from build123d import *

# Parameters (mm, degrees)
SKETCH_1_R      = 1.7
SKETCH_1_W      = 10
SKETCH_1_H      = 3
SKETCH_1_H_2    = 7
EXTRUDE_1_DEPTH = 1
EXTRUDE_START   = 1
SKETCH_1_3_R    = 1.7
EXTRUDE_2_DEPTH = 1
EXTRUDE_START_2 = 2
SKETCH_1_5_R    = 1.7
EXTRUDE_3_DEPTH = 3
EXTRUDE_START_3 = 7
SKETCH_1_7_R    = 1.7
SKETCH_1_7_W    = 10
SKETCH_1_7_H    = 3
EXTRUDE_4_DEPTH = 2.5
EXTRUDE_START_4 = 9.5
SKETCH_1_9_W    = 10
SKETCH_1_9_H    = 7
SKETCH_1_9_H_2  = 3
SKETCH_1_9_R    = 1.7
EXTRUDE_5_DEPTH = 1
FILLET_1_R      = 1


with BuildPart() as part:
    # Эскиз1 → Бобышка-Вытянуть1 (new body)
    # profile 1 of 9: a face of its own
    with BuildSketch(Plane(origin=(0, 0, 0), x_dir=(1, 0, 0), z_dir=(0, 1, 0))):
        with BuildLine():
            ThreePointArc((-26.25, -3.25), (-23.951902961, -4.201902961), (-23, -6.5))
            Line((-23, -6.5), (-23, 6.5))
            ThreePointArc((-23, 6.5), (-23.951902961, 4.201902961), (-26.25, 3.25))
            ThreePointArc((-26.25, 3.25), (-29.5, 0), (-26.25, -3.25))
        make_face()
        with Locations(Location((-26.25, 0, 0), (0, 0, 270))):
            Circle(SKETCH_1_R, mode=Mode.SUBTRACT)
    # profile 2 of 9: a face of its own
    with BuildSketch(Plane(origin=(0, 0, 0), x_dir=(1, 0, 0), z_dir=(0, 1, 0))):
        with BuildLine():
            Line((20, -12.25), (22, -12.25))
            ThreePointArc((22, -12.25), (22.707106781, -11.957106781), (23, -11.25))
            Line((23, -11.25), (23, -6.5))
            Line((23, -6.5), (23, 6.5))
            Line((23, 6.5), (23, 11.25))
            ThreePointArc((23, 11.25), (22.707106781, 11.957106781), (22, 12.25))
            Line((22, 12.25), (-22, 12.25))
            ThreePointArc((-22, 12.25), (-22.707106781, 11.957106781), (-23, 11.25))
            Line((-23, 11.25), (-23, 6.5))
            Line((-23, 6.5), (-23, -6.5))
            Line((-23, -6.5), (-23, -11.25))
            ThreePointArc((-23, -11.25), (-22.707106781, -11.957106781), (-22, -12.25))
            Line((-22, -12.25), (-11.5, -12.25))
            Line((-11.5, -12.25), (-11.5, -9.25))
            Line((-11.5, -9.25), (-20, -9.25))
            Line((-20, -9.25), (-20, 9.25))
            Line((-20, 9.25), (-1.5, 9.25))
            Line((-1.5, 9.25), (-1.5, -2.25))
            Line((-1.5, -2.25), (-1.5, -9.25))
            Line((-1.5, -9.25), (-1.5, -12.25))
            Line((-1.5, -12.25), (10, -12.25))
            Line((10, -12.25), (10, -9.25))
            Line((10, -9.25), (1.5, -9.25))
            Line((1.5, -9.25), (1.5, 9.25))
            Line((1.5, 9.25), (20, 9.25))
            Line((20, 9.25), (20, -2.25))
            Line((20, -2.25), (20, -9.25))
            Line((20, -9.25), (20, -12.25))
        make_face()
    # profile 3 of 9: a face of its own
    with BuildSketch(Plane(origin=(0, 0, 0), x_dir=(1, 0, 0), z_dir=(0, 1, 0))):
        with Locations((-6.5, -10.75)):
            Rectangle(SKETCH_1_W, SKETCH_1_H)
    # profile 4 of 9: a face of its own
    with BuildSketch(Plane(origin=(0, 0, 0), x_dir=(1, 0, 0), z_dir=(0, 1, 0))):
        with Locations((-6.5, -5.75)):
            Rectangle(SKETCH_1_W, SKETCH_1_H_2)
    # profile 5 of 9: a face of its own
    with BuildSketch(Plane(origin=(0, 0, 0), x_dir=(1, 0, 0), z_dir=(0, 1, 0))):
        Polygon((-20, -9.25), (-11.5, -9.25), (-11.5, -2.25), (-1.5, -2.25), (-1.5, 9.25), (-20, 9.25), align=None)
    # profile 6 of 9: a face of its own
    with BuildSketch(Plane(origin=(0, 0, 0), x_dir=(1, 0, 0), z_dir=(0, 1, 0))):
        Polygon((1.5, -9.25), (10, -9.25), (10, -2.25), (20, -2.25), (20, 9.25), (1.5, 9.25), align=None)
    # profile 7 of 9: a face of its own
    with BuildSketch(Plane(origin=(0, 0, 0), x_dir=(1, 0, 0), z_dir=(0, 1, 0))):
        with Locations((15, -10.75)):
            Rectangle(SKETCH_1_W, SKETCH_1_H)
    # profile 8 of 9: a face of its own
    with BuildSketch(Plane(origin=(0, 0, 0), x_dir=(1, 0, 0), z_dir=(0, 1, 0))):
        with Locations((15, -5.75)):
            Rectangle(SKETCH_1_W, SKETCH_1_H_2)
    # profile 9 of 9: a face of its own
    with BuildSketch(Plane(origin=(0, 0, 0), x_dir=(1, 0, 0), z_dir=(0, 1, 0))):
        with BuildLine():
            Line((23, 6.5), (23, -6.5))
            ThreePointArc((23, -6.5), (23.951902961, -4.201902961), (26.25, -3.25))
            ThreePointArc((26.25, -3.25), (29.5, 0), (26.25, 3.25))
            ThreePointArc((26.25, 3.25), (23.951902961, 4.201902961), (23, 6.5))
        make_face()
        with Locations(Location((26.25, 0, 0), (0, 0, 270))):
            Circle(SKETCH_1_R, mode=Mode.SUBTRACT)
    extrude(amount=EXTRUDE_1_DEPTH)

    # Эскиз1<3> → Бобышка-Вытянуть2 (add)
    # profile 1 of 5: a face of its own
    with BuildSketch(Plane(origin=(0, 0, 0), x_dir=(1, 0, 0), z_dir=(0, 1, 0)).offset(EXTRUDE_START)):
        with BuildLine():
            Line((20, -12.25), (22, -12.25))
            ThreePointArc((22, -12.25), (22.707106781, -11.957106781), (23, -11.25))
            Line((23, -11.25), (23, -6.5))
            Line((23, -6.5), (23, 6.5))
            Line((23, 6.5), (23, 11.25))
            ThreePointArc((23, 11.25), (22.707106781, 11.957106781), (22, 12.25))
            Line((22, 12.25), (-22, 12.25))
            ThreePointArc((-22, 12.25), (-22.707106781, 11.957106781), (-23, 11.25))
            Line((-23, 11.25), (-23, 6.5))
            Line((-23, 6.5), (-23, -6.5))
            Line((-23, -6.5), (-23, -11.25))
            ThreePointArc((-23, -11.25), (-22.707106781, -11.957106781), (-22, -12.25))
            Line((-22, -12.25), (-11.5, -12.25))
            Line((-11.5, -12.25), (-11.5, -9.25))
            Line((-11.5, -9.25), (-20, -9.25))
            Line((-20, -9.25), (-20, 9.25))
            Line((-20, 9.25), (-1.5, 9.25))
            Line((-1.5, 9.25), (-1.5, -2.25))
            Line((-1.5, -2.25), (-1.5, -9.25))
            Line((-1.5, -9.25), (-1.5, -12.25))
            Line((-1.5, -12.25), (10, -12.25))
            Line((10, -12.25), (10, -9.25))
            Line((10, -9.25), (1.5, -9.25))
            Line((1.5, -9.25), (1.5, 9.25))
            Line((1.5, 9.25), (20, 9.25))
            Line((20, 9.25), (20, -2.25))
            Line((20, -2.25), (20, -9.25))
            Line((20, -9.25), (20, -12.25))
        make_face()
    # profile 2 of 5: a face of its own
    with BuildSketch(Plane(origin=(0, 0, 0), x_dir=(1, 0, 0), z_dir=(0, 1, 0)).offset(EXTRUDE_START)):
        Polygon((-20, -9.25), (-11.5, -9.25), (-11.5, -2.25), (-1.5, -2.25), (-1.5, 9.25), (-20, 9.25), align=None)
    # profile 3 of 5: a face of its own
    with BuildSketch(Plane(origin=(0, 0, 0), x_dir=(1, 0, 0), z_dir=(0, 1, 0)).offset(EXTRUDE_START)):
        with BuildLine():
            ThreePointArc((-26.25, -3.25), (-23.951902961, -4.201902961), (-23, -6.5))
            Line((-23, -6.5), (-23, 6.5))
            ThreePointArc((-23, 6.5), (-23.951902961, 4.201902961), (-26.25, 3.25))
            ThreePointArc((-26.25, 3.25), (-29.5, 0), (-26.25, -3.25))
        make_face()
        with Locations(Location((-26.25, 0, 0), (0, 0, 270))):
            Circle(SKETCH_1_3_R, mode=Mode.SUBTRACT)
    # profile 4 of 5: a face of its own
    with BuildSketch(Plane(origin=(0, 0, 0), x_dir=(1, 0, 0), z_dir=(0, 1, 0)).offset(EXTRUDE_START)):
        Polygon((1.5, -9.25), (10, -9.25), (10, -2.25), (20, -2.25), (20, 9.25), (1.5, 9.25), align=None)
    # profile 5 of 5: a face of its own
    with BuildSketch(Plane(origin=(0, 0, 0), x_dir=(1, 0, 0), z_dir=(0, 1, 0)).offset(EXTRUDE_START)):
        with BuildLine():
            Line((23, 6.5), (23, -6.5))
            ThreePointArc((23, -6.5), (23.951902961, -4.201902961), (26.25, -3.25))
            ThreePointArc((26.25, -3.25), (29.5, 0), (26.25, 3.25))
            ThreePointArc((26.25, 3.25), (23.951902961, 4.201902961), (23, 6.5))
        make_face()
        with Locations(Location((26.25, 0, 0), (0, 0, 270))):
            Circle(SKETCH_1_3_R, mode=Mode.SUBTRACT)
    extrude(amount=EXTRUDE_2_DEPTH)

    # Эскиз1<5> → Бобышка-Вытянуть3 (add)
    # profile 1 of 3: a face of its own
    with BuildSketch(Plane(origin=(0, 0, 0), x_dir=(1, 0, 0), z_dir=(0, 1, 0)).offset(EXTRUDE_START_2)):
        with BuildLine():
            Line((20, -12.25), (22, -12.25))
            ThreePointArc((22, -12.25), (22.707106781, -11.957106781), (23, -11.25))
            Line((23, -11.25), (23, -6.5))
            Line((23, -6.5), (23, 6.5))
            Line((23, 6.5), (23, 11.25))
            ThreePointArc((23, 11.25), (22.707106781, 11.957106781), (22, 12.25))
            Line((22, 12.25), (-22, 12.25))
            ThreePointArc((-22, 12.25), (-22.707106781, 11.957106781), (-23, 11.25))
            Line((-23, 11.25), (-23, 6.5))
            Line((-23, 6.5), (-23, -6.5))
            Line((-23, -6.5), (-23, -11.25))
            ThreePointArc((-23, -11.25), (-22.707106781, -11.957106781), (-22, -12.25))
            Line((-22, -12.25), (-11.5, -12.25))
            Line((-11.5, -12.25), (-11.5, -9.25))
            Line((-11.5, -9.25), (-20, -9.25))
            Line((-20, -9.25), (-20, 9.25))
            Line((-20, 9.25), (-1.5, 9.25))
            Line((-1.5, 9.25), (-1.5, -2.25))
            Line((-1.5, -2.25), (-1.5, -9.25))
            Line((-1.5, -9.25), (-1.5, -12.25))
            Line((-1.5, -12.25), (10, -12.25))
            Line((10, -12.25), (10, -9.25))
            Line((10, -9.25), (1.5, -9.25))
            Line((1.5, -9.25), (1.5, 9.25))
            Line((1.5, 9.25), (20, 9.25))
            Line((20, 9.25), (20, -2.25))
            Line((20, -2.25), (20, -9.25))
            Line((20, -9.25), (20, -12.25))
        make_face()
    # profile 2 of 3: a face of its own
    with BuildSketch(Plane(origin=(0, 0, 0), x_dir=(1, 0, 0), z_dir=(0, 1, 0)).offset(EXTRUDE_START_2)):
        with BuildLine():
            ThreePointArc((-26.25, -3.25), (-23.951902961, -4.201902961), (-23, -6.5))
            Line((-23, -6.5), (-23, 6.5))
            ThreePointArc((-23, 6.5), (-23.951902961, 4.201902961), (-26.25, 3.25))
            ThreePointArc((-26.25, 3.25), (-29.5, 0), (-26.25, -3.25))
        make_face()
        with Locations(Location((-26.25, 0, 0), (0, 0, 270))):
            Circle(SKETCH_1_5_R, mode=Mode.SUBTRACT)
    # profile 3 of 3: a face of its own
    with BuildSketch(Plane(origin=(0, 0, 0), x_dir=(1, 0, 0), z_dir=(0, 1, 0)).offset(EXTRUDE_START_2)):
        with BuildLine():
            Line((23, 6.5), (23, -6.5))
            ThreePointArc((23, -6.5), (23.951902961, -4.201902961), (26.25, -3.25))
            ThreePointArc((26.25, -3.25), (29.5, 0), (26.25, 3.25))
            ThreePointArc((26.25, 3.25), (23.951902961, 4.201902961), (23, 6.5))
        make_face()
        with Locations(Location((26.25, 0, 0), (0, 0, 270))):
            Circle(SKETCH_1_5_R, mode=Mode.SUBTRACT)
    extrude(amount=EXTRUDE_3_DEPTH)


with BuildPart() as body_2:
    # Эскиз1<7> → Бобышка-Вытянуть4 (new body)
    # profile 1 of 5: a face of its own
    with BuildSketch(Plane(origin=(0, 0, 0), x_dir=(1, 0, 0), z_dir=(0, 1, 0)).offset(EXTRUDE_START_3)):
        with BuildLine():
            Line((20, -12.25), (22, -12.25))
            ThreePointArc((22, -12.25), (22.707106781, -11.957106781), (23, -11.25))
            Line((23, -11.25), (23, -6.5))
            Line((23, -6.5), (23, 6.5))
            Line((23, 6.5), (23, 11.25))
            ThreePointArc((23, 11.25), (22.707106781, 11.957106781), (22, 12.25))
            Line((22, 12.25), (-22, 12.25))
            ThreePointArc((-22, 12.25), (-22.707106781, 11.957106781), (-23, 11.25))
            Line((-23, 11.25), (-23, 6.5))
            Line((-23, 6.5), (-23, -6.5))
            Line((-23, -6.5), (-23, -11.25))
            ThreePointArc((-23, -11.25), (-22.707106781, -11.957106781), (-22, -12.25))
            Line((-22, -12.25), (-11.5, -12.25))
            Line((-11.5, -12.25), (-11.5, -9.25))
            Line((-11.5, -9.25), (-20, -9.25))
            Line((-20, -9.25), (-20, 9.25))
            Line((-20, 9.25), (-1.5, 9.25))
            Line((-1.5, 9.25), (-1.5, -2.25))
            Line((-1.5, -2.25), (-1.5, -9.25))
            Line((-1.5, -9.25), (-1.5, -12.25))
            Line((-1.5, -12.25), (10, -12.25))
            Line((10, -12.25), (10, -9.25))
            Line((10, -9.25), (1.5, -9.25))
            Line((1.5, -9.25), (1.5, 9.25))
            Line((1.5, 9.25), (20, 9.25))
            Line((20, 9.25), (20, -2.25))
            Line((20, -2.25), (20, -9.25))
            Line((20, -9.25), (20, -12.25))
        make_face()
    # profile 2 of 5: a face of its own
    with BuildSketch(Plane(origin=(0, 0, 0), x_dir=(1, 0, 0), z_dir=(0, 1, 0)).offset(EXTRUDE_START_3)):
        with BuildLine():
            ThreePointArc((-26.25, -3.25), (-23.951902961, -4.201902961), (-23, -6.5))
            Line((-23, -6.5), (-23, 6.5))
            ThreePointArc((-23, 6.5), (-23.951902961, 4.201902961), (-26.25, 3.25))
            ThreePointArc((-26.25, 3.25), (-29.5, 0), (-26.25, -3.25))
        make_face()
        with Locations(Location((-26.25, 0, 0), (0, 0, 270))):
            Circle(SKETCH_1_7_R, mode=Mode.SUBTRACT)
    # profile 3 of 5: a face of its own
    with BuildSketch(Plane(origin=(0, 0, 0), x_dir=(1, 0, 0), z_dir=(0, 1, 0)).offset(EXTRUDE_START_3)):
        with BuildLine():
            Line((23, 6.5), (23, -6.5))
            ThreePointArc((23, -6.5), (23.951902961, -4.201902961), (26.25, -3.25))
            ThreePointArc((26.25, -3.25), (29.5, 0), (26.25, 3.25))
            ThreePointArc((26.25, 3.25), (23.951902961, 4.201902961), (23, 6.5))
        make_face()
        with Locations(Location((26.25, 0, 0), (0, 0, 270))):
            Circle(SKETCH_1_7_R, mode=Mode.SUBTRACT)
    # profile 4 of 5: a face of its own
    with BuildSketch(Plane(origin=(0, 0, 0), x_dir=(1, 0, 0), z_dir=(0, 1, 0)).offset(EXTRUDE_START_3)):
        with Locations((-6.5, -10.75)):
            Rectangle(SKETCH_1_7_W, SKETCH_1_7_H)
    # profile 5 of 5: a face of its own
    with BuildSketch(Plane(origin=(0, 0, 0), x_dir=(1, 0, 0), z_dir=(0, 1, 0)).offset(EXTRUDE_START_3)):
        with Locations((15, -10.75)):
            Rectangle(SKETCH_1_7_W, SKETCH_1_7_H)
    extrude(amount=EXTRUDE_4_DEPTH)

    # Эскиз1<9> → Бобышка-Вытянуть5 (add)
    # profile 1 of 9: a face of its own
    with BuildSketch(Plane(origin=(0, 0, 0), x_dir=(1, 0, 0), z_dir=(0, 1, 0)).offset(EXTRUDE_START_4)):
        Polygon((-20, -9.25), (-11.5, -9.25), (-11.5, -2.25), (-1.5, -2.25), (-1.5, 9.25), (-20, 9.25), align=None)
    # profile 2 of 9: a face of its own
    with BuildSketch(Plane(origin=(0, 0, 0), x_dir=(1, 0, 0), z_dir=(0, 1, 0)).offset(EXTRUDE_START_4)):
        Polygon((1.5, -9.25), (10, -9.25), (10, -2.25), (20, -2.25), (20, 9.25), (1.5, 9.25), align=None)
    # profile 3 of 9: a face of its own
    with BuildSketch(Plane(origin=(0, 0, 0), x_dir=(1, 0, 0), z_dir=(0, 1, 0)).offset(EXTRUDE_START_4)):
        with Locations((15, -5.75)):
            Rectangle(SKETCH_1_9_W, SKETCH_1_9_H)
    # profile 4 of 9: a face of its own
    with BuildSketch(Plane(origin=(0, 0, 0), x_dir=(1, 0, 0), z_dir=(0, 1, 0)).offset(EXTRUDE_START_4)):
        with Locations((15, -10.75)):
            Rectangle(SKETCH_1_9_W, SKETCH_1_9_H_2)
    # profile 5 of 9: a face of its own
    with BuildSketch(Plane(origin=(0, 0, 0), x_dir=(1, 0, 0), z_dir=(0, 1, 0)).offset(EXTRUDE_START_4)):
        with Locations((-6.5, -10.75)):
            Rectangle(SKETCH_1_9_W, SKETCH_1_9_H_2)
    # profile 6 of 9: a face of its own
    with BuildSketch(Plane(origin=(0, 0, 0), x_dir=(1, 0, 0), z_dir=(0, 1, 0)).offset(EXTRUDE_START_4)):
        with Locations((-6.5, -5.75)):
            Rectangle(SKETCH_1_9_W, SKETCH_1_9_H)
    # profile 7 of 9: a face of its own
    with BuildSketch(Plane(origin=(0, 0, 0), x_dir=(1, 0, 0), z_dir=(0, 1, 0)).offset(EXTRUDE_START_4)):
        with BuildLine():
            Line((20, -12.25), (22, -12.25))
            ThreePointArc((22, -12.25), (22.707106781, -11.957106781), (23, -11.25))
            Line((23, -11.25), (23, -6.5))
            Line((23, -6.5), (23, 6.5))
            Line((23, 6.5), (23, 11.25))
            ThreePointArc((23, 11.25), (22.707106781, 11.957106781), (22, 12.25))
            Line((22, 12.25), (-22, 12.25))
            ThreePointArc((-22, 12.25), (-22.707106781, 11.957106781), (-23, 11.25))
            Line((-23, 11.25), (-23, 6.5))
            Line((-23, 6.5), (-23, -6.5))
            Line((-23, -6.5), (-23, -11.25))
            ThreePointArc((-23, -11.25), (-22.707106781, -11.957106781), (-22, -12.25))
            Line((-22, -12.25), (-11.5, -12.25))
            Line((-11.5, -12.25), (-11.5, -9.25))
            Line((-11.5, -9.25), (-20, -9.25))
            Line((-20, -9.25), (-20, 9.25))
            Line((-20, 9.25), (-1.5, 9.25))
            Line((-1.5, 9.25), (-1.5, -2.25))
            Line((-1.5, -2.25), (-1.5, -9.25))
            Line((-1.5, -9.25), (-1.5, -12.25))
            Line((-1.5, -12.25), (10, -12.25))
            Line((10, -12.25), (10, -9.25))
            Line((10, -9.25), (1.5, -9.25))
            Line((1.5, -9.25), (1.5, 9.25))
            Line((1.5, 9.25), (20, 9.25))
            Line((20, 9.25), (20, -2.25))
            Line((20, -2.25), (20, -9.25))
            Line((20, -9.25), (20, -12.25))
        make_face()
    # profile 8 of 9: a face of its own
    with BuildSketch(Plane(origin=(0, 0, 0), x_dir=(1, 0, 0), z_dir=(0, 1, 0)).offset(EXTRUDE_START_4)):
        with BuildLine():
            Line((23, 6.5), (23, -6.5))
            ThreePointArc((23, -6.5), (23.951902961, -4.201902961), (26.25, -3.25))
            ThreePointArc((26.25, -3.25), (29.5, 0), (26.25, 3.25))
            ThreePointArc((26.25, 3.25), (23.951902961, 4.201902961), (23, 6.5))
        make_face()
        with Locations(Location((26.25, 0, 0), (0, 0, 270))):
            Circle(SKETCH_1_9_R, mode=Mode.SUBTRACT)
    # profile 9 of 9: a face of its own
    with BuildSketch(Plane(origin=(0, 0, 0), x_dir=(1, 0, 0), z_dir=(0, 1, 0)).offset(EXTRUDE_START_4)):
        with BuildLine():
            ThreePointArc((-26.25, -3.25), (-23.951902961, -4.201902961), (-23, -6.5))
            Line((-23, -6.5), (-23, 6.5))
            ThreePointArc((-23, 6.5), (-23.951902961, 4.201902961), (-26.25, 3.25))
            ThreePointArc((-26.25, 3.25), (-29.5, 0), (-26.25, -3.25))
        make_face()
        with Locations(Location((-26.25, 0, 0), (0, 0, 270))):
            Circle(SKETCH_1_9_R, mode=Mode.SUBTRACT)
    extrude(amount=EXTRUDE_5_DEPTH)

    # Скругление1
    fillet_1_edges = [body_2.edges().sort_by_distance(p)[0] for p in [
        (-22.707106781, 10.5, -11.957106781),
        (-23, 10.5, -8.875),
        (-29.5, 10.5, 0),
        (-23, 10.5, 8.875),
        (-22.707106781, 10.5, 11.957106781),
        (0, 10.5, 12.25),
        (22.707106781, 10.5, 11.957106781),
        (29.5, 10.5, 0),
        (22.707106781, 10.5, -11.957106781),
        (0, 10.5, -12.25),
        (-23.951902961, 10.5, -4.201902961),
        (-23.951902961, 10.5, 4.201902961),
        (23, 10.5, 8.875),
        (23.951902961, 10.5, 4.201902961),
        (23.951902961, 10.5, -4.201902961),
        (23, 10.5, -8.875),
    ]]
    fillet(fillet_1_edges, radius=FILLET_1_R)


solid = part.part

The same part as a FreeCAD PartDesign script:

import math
import FreeCAD as App
import Part
import Sketcher
from FreeCAD import Vector
Q = App.Units.Quantity


def edges_at(feature, points):
    """Names of the edges that pass closest to the given points."""
    edges = feature.Shape.Edges
    near = lambda p: min(range(len(edges)), key=lambda i: edges[i].distToShape(Part.Vertex(*p))[0])
    return sorted({f"Edge{near(p) + 1}" for p in points})

doc = App.newDocument("Part")
body = doc.addObject("PartDesign::Body", "Body")

sketch1 = body.newObject("Sketcher::SketchObject", "Sketch")
sketch1.AttachmentSupport = (doc.getObject("XZ_Plane"), [""])
sketch1.MapMode = "FlatFace"
sketch1.addGeometry(Part.ArcOfCircle(Part.Circle(Vector(-26.25, 6.5, 0), Vector(0, 0, 1), 3.25), math.radians(-90), math.radians(0)), False)
sketch1.addGeometry(Part.LineSegment(Vector(-23, 6.5, 0), Vector(-23, 11.25, 0)), False)
sketch1.addGeometry(Part.ArcOfCircle(Part.Circle(Vector(-22, 11.25, 0), Vector(0, 0, 1), 1), math.radians(90), math.radians(180)), False)
sketch1.addGeometry(Part.LineSegment(Vector(-22, 12.25, 0), Vector(22, 12.25, 0)), False)
sketch1.addGeometry(Part.ArcOfCircle(Part.Circle(Vector(22, 11.25, 0), Vector(0, 0, 1), 1), math.radians(0), math.radians(90)), False)
sketch1.addGeometry(Part.LineSegment(Vector(23, 11.25, 0), Vector(23, 6.5, 0)), False)
sketch1.addGeometry(Part.ArcOfCircle(Part.Circle(Vector(26.25, 6.5, 0), Vector(0, 0, 1), 3.25), math.radians(180), math.radians(270)), False)
sketch1.addGeometry(Part.ArcOfCircle(Part.Circle(Vector(26.25, 0, 0), Vector(0, 0, 1), 3.25), math.radians(-90), math.radians(90)), False)
sketch1.addGeometry(Part.ArcOfCircle(Part.Circle(Vector(26.25, -6.5, 0), Vector(0, 0, 1), 3.25), math.radians(90), math.radians(180)), False)
sketch1.addGeometry(Part.LineSegment(Vector(23, -6.5, 0), Vector(23, -11.25, 0)), False)
sketch1.addGeometry(Part.ArcOfCircle(Part.Circle(Vector(22, -11.25, 0), Vector(0, 0, 1), 1), math.radians(-90), math.radians(0)), False)
sketch1.addGeometry(Part.LineSegment(Vector(22, -12.25, 0), Vector(-22, -12.25, 0)), False)
sketch1.addGeometry(Part.ArcOfCircle(Part.Circle(Vector(-22, -11.25, 0), Vector(0, 0, 1), 1), math.radians(-180), math.radians(-90)), False)
sketch1.addGeometry(Part.LineSegment(Vector(-23, -11.25, 0), Vector(-23, -6.5, 0)), False)
sketch1.addGeometry(Part.ArcOfCircle(Part.Circle(Vector(-26.25, -6.5, 0), Vector(0, 0, 1), 3.25), math.radians(0), math.radians(90)), False)
sketch1.addGeometry(Part.ArcOfCircle(Part.Circle(Vector(-26.25, 0, 0), Vector(0, 0, 1), 3.25), math.radians(90), math.radians(270)), False)
sketch1.addGeometry(Part.Circle(Vector(-26.25, 0, 0), Vector(0, 0, 1), 1.7), False)
sketch1.addGeometry(Part.Circle(Vector(26.25, 0, 0), Vector(0, 0, 1), 1.7), False)
sketch1.addConstraint(Sketcher.Constraint("Tangent", 0, 2, 1, 1))
sketch1.addConstraint(Sketcher.Constraint("Tangent", 1, 2, 2, 2))
sketch1.addConstraint(Sketcher.Constraint("Tangent", 2, 1, 3, 1))
sketch1.addConstraint(Sketcher.Constraint("Tangent", 3, 2, 4, 2))
sketch1.addConstraint(Sketcher.Constraint("Tangent", 4, 1, 5, 1))
sketch1.addConstraint(Sketcher.Constraint("Tangent", 5, 2, 6, 1))
sketch1.addConstraint(Sketcher.Constraint("Tangent", 6, 2, 7, 2))
sketch1.addConstraint(Sketcher.Constraint("Tangent", 7, 1, 8, 1))
sketch1.addConstraint(Sketcher.Constraint("Tangent", 8, 2, 9, 1))
sketch1.addConstraint(Sketcher.Constraint("Tangent", 9, 2, 10, 2))
sketch1.addConstraint(Sketcher.Constraint("Tangent", 10, 1, 11, 1))
sketch1.addConstraint(Sketcher.Constraint("Tangent", 11, 2, 12, 2))
sketch1.addConstraint(Sketcher.Constraint("Tangent", 12, 1, 13, 1))
sketch1.addConstraint(Sketcher.Constraint("Tangent", 13, 2, 14, 1))
sketch1.addConstraint(Sketcher.Constraint("Tangent", 14, 2, 15, 2))
sketch1.addConstraint(Sketcher.Constraint("Tangent", 15, 1, 0, 1))
sketch1.addConstraint(Sketcher.Constraint("Vertical", 1))
sketch1.addConstraint(Sketcher.Constraint("Horizontal", 3))
sketch1.addConstraint(Sketcher.Constraint("Vertical", 5))
sketch1.addConstraint(Sketcher.Constraint("Vertical", 9))
sketch1.addConstraint(Sketcher.Constraint("Horizontal", 11))
sketch1.addConstraint(Sketcher.Constraint("Vertical", 13))
sketch1.addConstraint(Sketcher.Constraint("Coincident", 16, 3, 15, 3))
sketch1.addConstraint(Sketcher.Constraint("Coincident", 17, 3, 7, 3))
sketch1.addConstraint(Sketcher.Constraint("Equal", 2, 4))
sketch1.addConstraint(Sketcher.Constraint("Equal", 0, 6))
sketch1.addConstraint(Sketcher.Constraint("Equal", 6, 7))
sketch1.addConstraint(Sketcher.Constraint("Equal", 7, 8))
sketch1.addConstraint(Sketcher.Constraint("Equal", 4, 10))
sketch1.addConstraint(Sketcher.Constraint("Equal", 10, 12))
sketch1.addConstraint(Sketcher.Constraint("Equal", 8, 14))
sketch1.addConstraint(Sketcher.Constraint("Equal", 14, 15))
sketch1.addConstraint(Sketcher.Constraint("Equal", 16, 17))
sketch1.addConstraint(Sketcher.Constraint("Symmetric", 0, 3, 8, 3, -1, 1))
sketch1.addConstraint(Sketcher.Constraint("Symmetric", 4, 3, 12, 3, -1, 1))
sketch1.addConstraint(Sketcher.Constraint("Symmetric", 0, 3, 6, 3, -2))
sketch1.addConstraint(Sketcher.Constraint("Vertical", 6, 3, 7, 3))
sketch1.addConstraint(Sketcher.Constraint("Vertical", 14, 3, 15, 3))
sketch1.addConstraint(Sketcher.Constraint("Radius", 2, Q("1 mm")))
sketch1.addConstraint(Sketcher.Constraint("Diameter", 16, Q("3.4 mm")))
sketch1.addConstraint(Sketcher.Constraint("DistanceX", 3, 1, 3, 2, Q("44 mm")))
sketch1.addConstraint(Sketcher.Constraint("Radius", 0, Q("3.25 mm")))
sketch1.addConstraint(Sketcher.Constraint("DistanceY", 6, 2, 4, 1, Q("8 mm")))
pad1 = body.newObject("PartDesign::Pad", "Pad")
pad1.Profile = sketch1
pad1.Length = 1
pad1.Reversed = True

sketch2 = body.newObject("Sketcher::SketchObject", "Sketch001")
sketch2.AttachmentSupport = (doc.getObject("XZ_Plane"), [""])
sketch2.MapMode = "FlatFace"
sketch2.AttachmentOffset = App.Placement(Vector(0, 0, -1), App.Rotation())
sketch2.addGeometry(Part.LineSegment(Vector(20, 12.25, 0), Vector(22, 12.25, 0)), False)
sketch2.addGeometry(Part.ArcOfCircle(Part.Circle(Vector(22, 11.25, 0), Vector(0, 0, 1), 1), math.radians(0), math.radians(90)), False)
sketch2.addGeometry(Part.LineSegment(Vector(23, 11.25, 0), Vector(23, 6.5, 0)), False)
sketch2.addGeometry(Part.ArcOfCircle(Part.Circle(Vector(26.25, 6.5, 0), Vector(0, 0, 1), 3.25), math.radians(180), math.radians(270)), False)
sketch2.addGeometry(Part.ArcOfCircle(Part.Circle(Vector(26.25, 0, 0), Vector(0, 0, 1), 3.25), math.radians(-90), math.radians(90)), False)
sketch2.addGeometry(Part.ArcOfCircle(Part.Circle(Vector(26.25, -6.5, 0), Vector(0, 0, 1), 3.25), math.radians(90), math.radians(180)), False)
sketch2.addGeometry(Part.LineSegment(Vector(23, -6.5, 0), Vector(23, -11.25, 0)), False)
sketch2.addGeometry(Part.ArcOfCircle(Part.Circle(Vector(22, -11.25, 0), Vector(0, 0, 1), 1), math.radians(-90), math.radians(0)), False)
sketch2.addGeometry(Part.LineSegment(Vector(22, -12.25, 0), Vector(-22, -12.25, 0)), False)
sketch2.addGeometry(Part.ArcOfCircle(Part.Circle(Vector(-22, -11.25, 0), Vector(0, 0, 1), 1), math.radians(-180), math.radians(-90)), False)
sketch2.addGeometry(Part.LineSegment(Vector(-23, -11.25, 0), Vector(-23, -6.5, 0)), False)
sketch2.addGeometry(Part.ArcOfCircle(Part.Circle(Vector(-26.25, -6.5, 0), Vector(0, 0, 1), 3.25), math.radians(0), math.radians(90)), False)
sketch2.addGeometry(Part.ArcOfCircle(Part.Circle(Vector(-26.25, 0, 0), Vector(0, 0, 1), 3.25), math.radians(90), math.radians(270)), False)
sketch2.addGeometry(Part.ArcOfCircle(Part.Circle(Vector(-26.25, 6.5, 0), Vector(0, 0, 1), 3.25), math.radians(-90), math.radians(0)), False)
sketch2.addGeometry(Part.LineSegment(Vector(-23, 6.5, 0), Vector(-23, 11.25, 0)), False)
sketch2.addGeometry(Part.ArcOfCircle(Part.Circle(Vector(-22, 11.25, 0), Vector(0, 0, 1), 1), math.radians(90), math.radians(180)), False)
sketch2.addGeometry(Part.LineSegment(Vector(-22, 12.25, 0), Vector(-11.5, 12.25, 0)), False)
sketch2.addGeometry(Part.LineSegment(Vector(-11.5, 12.25, 0), Vector(-11.5, 2.25, 0)), False)
sketch2.addGeometry(Part.LineSegment(Vector(-11.5, 2.25, 0), Vector(-1.5, 2.25, 0)), False)
sketch2.addGeometry(Part.LineSegment(Vector(-1.5, 2.25, 0), Vector(-1.5, 12.25, 0)), False)
sketch2.addGeometry(Part.LineSegment(Vector(-1.5, 12.25, 0), Vector(10, 12.25, 0)), False)
sketch2.addGeometry(Part.LineSegment(Vector(10, 12.25, 0), Vector(10, 2.25, 0)), False)
sketch2.addGeometry(Part.LineSegment(Vector(10, 2.25, 0), Vector(20, 2.25, 0)), False)
sketch2.addGeometry(Part.LineSegment(Vector(20, 2.25, 0), Vector(20, 12.25, 0)), False)
sketch2.addGeometry(Part.Circle(Vector(26.25, 0, 0), Vector(0, 0, 1), 1.7), False)
sketch2.addGeometry(Part.Circle(Vector(-26.25, 0, 0), Vector(0, 0, 1), 1.7), False)
sketch2.addConstraint(Sketcher.Constraint("Tangent", 0, 2, 1, 2))
sketch2.addConstraint(Sketcher.Constraint("Tangent", 1, 1, 2, 1))
sketch2.addConstraint(Sketcher.Constraint("Tangent", 2, 2, 3, 1))
sketch2.addConstraint(Sketcher.Constraint("Tangent", 3, 2, 4, 2))
sketch2.addConstraint(Sketcher.Constraint("Tangent", 4, 1, 5, 1))
sketch2.addConstraint(Sketcher.Constraint("Tangent", 5, 2, 6, 1))
sketch2.addConstraint(Sketcher.Constraint("Tangent", 6, 2, 7, 2))
sketch2.addConstraint(Sketcher.Constraint("Tangent", 7, 1, 8, 1))
sketch2.addConstraint(Sketcher.Constraint("Tangent", 8, 2, 9, 2))
sketch2.addConstraint(Sketcher.Constraint("Tangent", 9, 1, 10, 1))
sketch2.addConstraint(Sketcher.Constraint("Tangent", 10, 2, 11, 1))
sketch2.addConstraint(Sketcher.Constraint("Tangent", 11, 2, 12, 2))
sketch2.addConstraint(Sketcher.Constraint("Tangent", 12, 1, 13, 1))
sketch2.addConstraint(Sketcher.Constraint("Tangent", 13, 2, 14, 1))
sketch2.addConstraint(Sketcher.Constraint("Tangent", 14, 2, 15, 2))
sketch2.addConstraint(Sketcher.Constraint("Tangent", 15, 1, 16, 1))
sketch2.addConstraint(Sketcher.Constraint("Coincident", 16, 2, 17, 1))
sketch2.addConstraint(Sketcher.Constraint("Coincident", 17, 2, 18, 1))
sketch2.addConstraint(Sketcher.Constraint("Coincident", 18, 2, 19, 1))
sketch2.addConstraint(Sketcher.Constraint("Coincident", 19, 2, 20, 1))
sketch2.addConstraint(Sketcher.Constraint("Coincident", 20, 2, 21, 1))
sketch2.addConstraint(Sketcher.Constraint("Coincident", 21, 2, 22, 1))
sketch2.addConstraint(Sketcher.Constraint("Coincident", 22, 2, 23, 1))
sketch2.addConstraint(Sketcher.Constraint("Coincident", 23, 2, 0, 1))
sketch2.addConstraint(Sketcher.Constraint("Horizontal", 0))
sketch2.addConstraint(Sketcher.Constraint("Vertical", 2))
sketch2.addConstraint(Sketcher.Constraint("Vertical", 6))
sketch2.addConstraint(Sketcher.Constraint("Horizontal", 8))
sketch2.addConstraint(Sketcher.Constraint("Vertical", 10))
sketch2.addConstraint(Sketcher.Constraint("Vertical", 14))
sketch2.addConstraint(Sketcher.Constraint("Horizontal", 16))
sketch2.addConstraint(Sketcher.Constraint("Vertical", 17))
sketch2.addConstraint(Sketcher.Constraint("Horizontal", 18))
sketch2.addConstraint(Sketcher.Constraint("Vertical", 19))
sketch2.addConstraint(Sketcher.Constraint("Horizontal", 20))
sketch2.addConstraint(Sketcher.Constraint("Vertical", 21))
sketch2.addConstraint(Sketcher.Constraint("Horizontal", 22))
sketch2.addConstraint(Sketcher.Constraint("Vertical", 23))
sketch2.addConstraint(Sketcher.Constraint("Coincident", 24, 3, 4, 3))
sketch2.addConstraint(Sketcher.Constraint("Coincident", 25, 3, 12, 3))
sketch2.addConstraint(Sketcher.Constraint("Equal", 3, 4))
sketch2.addConstraint(Sketcher.Constraint("Equal", 4, 5))
sketch2.addConstraint(Sketcher.Constraint("Equal", 1, 7))
sketch2.addConstraint(Sketcher.Constraint("Equal", 7, 9))
sketch2.addConstraint(Sketcher.Constraint("Equal", 5, 11))
sketch2.addConstraint(Sketcher.Constraint("Equal", 11, 12))
sketch2.addConstraint(Sketcher.Constraint("Equal", 12, 13))
sketch2.addConstraint(Sketcher.Constraint("Equal", 9, 15))
sketch2.addConstraint(Sketcher.Constraint("Equal", 24, 25))
sketch2.addConstraint(Sketcher.Constraint("Symmetric", 1, 3, 9, 3, -1, 1))
sketch2.addConstraint(Sketcher.Constraint("Symmetric", 4, 3, 12, 3, -1, 1))
sketch2.addConstraint(Sketcher.Constraint("Symmetric", 7, 3, 15, 3, -1, 1))
sketch2.addConstraint(Sketcher.Constraint("Symmetric", 5, 3, 11, 3, -2))
sketch2.addConstraint(Sketcher.Constraint("Horizontal", 16, 2, 19, 2))
sketch2.addConstraint(Sketcher.Constraint("Horizontal", 18, 2, 21, 2))
sketch2.addConstraint(Sketcher.Constraint("Vertical", 3, 3, 4, 3))
sketch2.addConstraint(Sketcher.Constraint("Equal", 18, 22))
sketch2.addConstraint(Sketcher.Constraint("Equal", 22, 17))
sketch2.addConstraint(Sketcher.Constraint("Radius", 1, Q("1 mm")))
sketch2.addConstraint(Sketcher.Constraint("Diameter", 24, Q("3.4 mm")))
sketch2.addConstraint(Sketcher.Constraint("DistanceX", 0, 1, 0, 2, Q("2 mm")))
sketch2.addConstraint(Sketcher.Constraint("DistanceX", 8, 2, 8, 1, Q("44 mm")))
sketch2.addConstraint(Sketcher.Constraint("DistanceX", 18, 1, 18, 2, Q("10 mm")))
sketch2.addConstraint(Sketcher.Constraint("Radius", 3, Q("3.25 mm")))
sketch2.addConstraint(Sketcher.Constraint("DistanceX", 16, 1, 16, 2, Q("10.5 mm")))
sketch2.addConstraint(Sketcher.Constraint("DistanceY", 3, 2, 1, 1, Q("8 mm")))
pad2 = body.newObject("PartDesign::Pad", "Pad001")
pad2.Profile = sketch2
pad2.Length = 1
pad2.Reversed = True

sketch3 = body.newObject("Sketcher::SketchObject", "Sketch002")
sketch3.AttachmentSupport = (doc.getObject("XZ_Plane"), [""])
sketch3.MapMode = "FlatFace"
sketch3.AttachmentOffset = App.Placement(Vector(0, 0, -2), App.Rotation())
sketch3.addGeometry(Part.LineSegment(Vector(20, 12.25, 0), Vector(22, 12.25, 0)), False)
sketch3.addGeometry(Part.ArcOfCircle(Part.Circle(Vector(22, 11.25, 0), Vector(0, 0, 1), 1), math.radians(0), math.radians(90)), False)
sketch3.addGeometry(Part.LineSegment(Vector(23, 11.25, 0), Vector(23, 6.5, 0)), False)
sketch3.addGeometry(Part.ArcOfCircle(Part.Circle(Vector(26.25, 6.5, 0), Vector(0, 0, 1), 3.25), math.radians(180), math.radians(270)), False)
sketch3.addGeometry(Part.ArcOfCircle(Part.Circle(Vector(26.25, 0, 0), Vector(0, 0, 1), 3.25), math.radians(-90), math.radians(90)), False)
sketch3.addGeometry(Part.ArcOfCircle(Part.Circle(Vector(26.25, -6.5, 0), Vector(0, 0, 1), 3.25), math.radians(90), math.radians(180)), False)
sketch3.addGeometry(Part.LineSegment(Vector(23, -6.5, 0), Vector(23, -11.25, 0)), False)
sketch3.addGeometry(Part.ArcOfCircle(Part.Circle(Vector(22, -11.25, 0), Vector(0, 0, 1), 1), math.radians(-90), math.radians(0)), False)
sketch3.addGeometry(Part.LineSegment(Vector(22, -12.25, 0), Vector(-22, -12.25, 0)), False)
sketch3.addGeometry(Part.ArcOfCircle(Part.Circle(Vector(-22, -11.25, 0), Vector(0, 0, 1), 1), math.radians(-180), math.radians(-90)), False)
sketch3.addGeometry(Part.LineSegment(Vector(-23, -11.25, 0), Vector(-23, -6.5, 0)), False)
sketch3.addGeometry(Part.ArcOfCircle(Part.Circle(Vector(-26.25, -6.5, 0), Vector(0, 0, 1), 3.25), math.radians(0), math.radians(90)), False)
sketch3.addGeometry(Part.ArcOfCircle(Part.Circle(Vector(-26.25, 0, 0), Vector(0, 0, 1), 3.25), math.radians(90), math.radians(270)), False)
sketch3.addGeometry(Part.ArcOfCircle(Part.Circle(Vector(-26.25, 6.5, 0), Vector(0, 0, 1), 3.25), math.radians(-90), math.radians(0)), False)
sketch3.addGeometry(Part.LineSegment(Vector(-23, 6.5, 0), Vector(-23, 11.25, 0)), False)
sketch3.addGeometry(Part.ArcOfCircle(Part.Circle(Vector(-22, 11.25, 0), Vector(0, 0, 1), 1), math.radians(90), math.radians(180)), False)
sketch3.addGeometry(Part.LineSegment(Vector(-22, 12.25, 0), Vector(-11.5, 12.25, 0)), False)
sketch3.addGeometry(Part.LineSegment(Vector(-11.5, 12.25, 0), Vector(-11.5, 9.25, 0)), False)
sketch3.addGeometry(Part.LineSegment(Vector(-11.5, 9.25, 0), Vector(-20, 9.25, 0)), False)
sketch3.addGeometry(Part.LineSegment(Vector(-20, 9.25, 0), Vector(-20, -9.25, 0)), False)
sketch3.addGeometry(Part.LineSegment(Vector(-20, -9.25, 0), Vector(-1.5, -9.25, 0)), False)
sketch3.addGeometry(Part.LineSegment(Vector(-1.5, -9.25, 0), Vector(-1.5, 12.25, 0)), False)
sketch3.addGeometry(Part.LineSegment(Vector(-1.5, 12.25, 0), Vector(10, 12.25, 0)), False)
sketch3.addGeometry(Part.LineSegment(Vector(10, 12.25, 0), Vector(10, 9.25, 0)), False)
sketch3.addGeometry(Part.LineSegment(Vector(10, 9.25, 0), Vector(1.5, 9.25, 0)), False)
sketch3.addGeometry(Part.LineSegment(Vector(1.5, 9.25, 0), Vector(1.5, -9.25, 0)), False)
sketch3.addGeometry(Part.LineSegment(Vector(1.5, -9.25, 0), Vector(20, -9.25, 0)), False)
sketch3.addGeometry(Part.LineSegment(Vector(20, -9.25, 0), Vector(20, 12.25, 0)), False)
sketch3.addGeometry(Part.Circle(Vector(26.25, 0, 0), Vector(0, 0, 1), 1.7), False)
sketch3.addGeometry(Part.Circle(Vector(-26.25, 0, 0), Vector(0, 0, 1), 1.7), False)
sketch3.addConstraint(Sketcher.Constraint("Tangent", 0, 2, 1, 2))
sketch3.addConstraint(Sketcher.Constraint("Tangent", 1, 1, 2, 1))
sketch3.addConstraint(Sketcher.Constraint("Tangent", 2, 2, 3, 1))
sketch3.addConstraint(Sketcher.Constraint("Tangent", 3, 2, 4, 2))
sketch3.addConstraint(Sketcher.Constraint("Tangent", 4, 1, 5, 1))
sketch3.addConstraint(Sketcher.Constraint("Tangent", 5, 2, 6, 1))
sketch3.addConstraint(Sketcher.Constraint("Tangent", 6, 2, 7, 2))
sketch3.addConstraint(Sketcher.Constraint("Tangent", 7, 1, 8, 1))
sketch3.addConstraint(Sketcher.Constraint("Tangent", 8, 2, 9, 2))
sketch3.addConstraint(Sketcher.Constraint("Tangent", 9, 1, 10, 1))
sketch3.addConstraint(Sketcher.Constraint("Tangent", 10, 2, 11, 1))
sketch3.addConstraint(Sketcher.Constraint("Tangent", 11, 2, 12, 2))
sketch3.addConstraint(Sketcher.Constraint("Tangent", 12, 1, 13, 1))
sketch3.addConstraint(Sketcher.Constraint("Tangent", 13, 2, 14, 1))
sketch3.addConstraint(Sketcher.Constraint("Tangent", 14, 2, 15, 2))
sketch3.addConstraint(Sketcher.Constraint("Tangent", 15, 1, 16, 1))
sketch3.addConstraint(Sketcher.Constraint("Coincident", 16, 2, 17, 1))
sketch3.addConstraint(Sketcher.Constraint("Coincident", 17, 2, 18, 1))
sketch3.addConstraint(Sketcher.Constraint("Coincident", 18, 2, 19, 1))
sketch3.addConstraint(Sketcher.Constraint("Coincident", 19, 2, 20, 1))
sketch3.addConstraint(Sketcher.Constraint("Coincident", 20, 2, 21, 1))
sketch3.addConstraint(Sketcher.Constraint("Coincident", 21, 2, 22, 1))
sketch3.addConstraint(Sketcher.Constraint("Coincident", 22, 2, 23, 1))
sketch3.addConstraint(Sketcher.Constraint("Coincident", 23, 2, 24, 1))
sketch3.addConstraint(Sketcher.Constraint("Coincident", 24, 2, 25, 1))
sketch3.addConstraint(Sketcher.Constraint("Coincident", 25, 2, 26, 1))
sketch3.addConstraint(Sketcher.Constraint("Coincident", 26, 2, 27, 1))
sketch3.addConstraint(Sketcher.Constraint("Coincident", 27, 2, 0, 1))
sketch3.addConstraint(Sketcher.Constraint("Horizontal", 0))
sketch3.addConstraint(Sketcher.Constraint("Vertical", 2))
sketch3.addConstraint(Sketcher.Constraint("Vertical", 6))
sketch3.addConstraint(Sketcher.Constraint("Horizontal", 8))
sketch3.addConstraint(Sketcher.Constraint("Vertical", 10))
sketch3.addConstraint(Sketcher.Constraint("Vertical", 14))
sketch3.addConstraint(Sketcher.Constraint("Horizontal", 16))
sketch3.addConstraint(Sketcher.Constraint("Vertical", 17))
sketch3.addConstraint(Sketcher.Constraint("Horizontal", 18))
sketch3.addConstraint(Sketcher.Constraint("Vertical", 19))
sketch3.addConstraint(Sketcher.Constraint("Horizontal", 20))
sketch3.addConstraint(Sketcher.Constraint("Vertical", 21))
sketch3.addConstraint(Sketcher.Constraint("Horizontal", 22))
sketch3.addConstraint(Sketcher.Constraint("Vertical", 23))
sketch3.addConstraint(Sketcher.Constraint("Horizontal", 24))
sketch3.addConstraint(Sketcher.Constraint("Vertical", 25))
sketch3.addConstraint(Sketcher.Constraint("Horizontal", 26))
sketch3.addConstraint(Sketcher.Constraint("Vertical", 27))
sketch3.addConstraint(Sketcher.Constraint("Coincident", 28, 3, 4, 3))
sketch3.addConstraint(Sketcher.Constraint("Coincident", 29, 3, 12, 3))
sketch3.addConstraint(Sketcher.Constraint("Equal", 3, 4))
sketch3.addConstraint(Sketcher.Constraint("Equal", 4, 5))
sketch3.addConstraint(Sketcher.Constraint("Equal", 1, 7))
sketch3.addConstraint(Sketcher.Constraint("Equal", 7, 9))
sketch3.addConstraint(Sketcher.Constraint("Equal", 5, 11))
sketch3.addConstraint(Sketcher.Constraint("Equal", 11, 12))
sketch3.addConstraint(Sketcher.Constraint("Equal", 12, 13))
sketch3.addConstraint(Sketcher.Constraint("Equal", 9, 15))
sketch3.addConstraint(Sketcher.Constraint("Equal", 28, 29))
sketch3.addConstraint(Sketcher.Constraint("Symmetric", 1, 3, 9, 3, -1, 1))
sketch3.addConstraint(Sketcher.Constraint("Symmetric", 4, 3, 12, 3, -1, 1))
sketch3.addConstraint(Sketcher.Constraint("Symmetric", 7, 3, 15, 3, -1, 1))
sketch3.addConstraint(Sketcher.Constraint("Symmetric", 20, 2, 24, 2, -1, 1))
sketch3.addConstraint(Sketcher.Constraint("Symmetric", 18, 2, 26, 2, -1, 1))
sketch3.addConstraint(Sketcher.Constraint("Symmetric", 5, 3, 11, 3, -2))
sketch3.addConstraint(Sketcher.Constraint("Horizontal", 16, 2, 21, 2))
sketch3.addConstraint(Sketcher.Constraint("Horizontal", 18, 2, 23, 2))
sketch3.addConstraint(Sketcher.Constraint("Vertical", 3, 3, 4, 3))
sketch3.addConstraint(Sketcher.Constraint("Equal", 18, 24))
sketch3.addConstraint(Sketcher.Constraint("Equal", 26, 19))
sketch3.addConstraint(Sketcher.Constraint("Radius", 1, Q("1 mm")))
sketch3.addConstraint(Sketcher.Constraint("Diameter", 28, Q("3.4 mm")))
sketch3.addConstraint(Sketcher.Constraint("DistanceX", 0, 1, 0, 2, Q("2 mm")))
sketch3.addConstraint(Sketcher.Constraint("DistanceX", 8, 2, 8, 1, Q("44 mm")))
sketch3.addConstraint(Sketcher.Constraint("DistanceY", 17, 2, 17, 1, Q("3 mm")))
sketch3.addConstraint(Sketcher.Constraint("Radius", 3, Q("3.25 mm")))
sketch3.addConstraint(Sketcher.Constraint("DistanceX", 16, 1, 16, 2, Q("10.5 mm")))
sketch3.addConstraint(Sketcher.Constraint("DistanceX", 20, 1, 20, 2, Q("18.5 mm")))
pad3 = body.newObject("PartDesign::Pad", "Pad002")
pad3.Profile = sketch3
pad3.Length = 3
pad3.Reversed = True
body2 = doc.addObject("PartDesign::Body", "Body001")

sketch4 = body2.newObject("Sketcher::SketchObject", "Sketch003")
sketch4.AttachmentSupport = (doc.getObject("XZ_Plane001"), [""])
sketch4.MapMode = "FlatFace"
sketch4.AttachmentOffset = App.Placement(Vector(0, 0, -7), App.Rotation())
sketch4.addGeometry(Part.ArcOfCircle(Part.Circle(Vector(22, 11.25, 0), Vector(0, 0, 1), 1), math.radians(0), math.radians(90)), False)
sketch4.addGeometry(Part.LineSegment(Vector(23, 11.25, 0), Vector(23, 6.5, 0)), False)
sketch4.addGeometry(Part.ArcOfCircle(Part.Circle(Vector(26.25, 6.5, 0), Vector(0, 0, 1), 3.25), math.radians(180), math.radians(270)), False)
sketch4.addGeometry(Part.ArcOfCircle(Part.Circle(Vector(26.25, 0, 0), Vector(0, 0, 1), 3.25), math.radians(-90), math.radians(90)), False)
sketch4.addGeometry(Part.ArcOfCircle(Part.Circle(Vector(26.25, -6.5, 0), Vector(0, 0, 1), 3.25), math.radians(90), math.radians(180)), False)
sketch4.addGeometry(Part.LineSegment(Vector(23, -6.5, 0), Vector(23, -11.25, 0)), False)
sketch4.addGeometry(Part.ArcOfCircle(Part.Circle(Vector(22, -11.25, 0), Vector(0, 0, 1), 1), math.radians(-90), math.radians(0)), False)
sketch4.addGeometry(Part.LineSegment(Vector(22, -12.25, 0), Vector(-22, -12.25, 0)), False)
sketch4.addGeometry(Part.ArcOfCircle(Part.Circle(Vector(-22, -11.25, 0), Vector(0, 0, 1), 1), math.radians(-180), math.radians(-90)), False)
sketch4.addGeometry(Part.LineSegment(Vector(-23, -11.25, 0), Vector(-23, -6.5, 0)), False)
sketch4.addGeometry(Part.ArcOfCircle(Part.Circle(Vector(-26.25, -6.5, 0), Vector(0, 0, 1), 3.25), math.radians(0), math.radians(90)), False)
sketch4.addGeometry(Part.ArcOfCircle(Part.Circle(Vector(-26.25, 0, 0), Vector(0, 0, 1), 3.25), math.radians(90), math.radians(270)), False)
sketch4.addGeometry(Part.ArcOfCircle(Part.Circle(Vector(-26.25, 6.5, 0), Vector(0, 0, 1), 3.25), math.radians(-90), math.radians(0)), False)
sketch4.addGeometry(Part.LineSegment(Vector(-23, 6.5, 0), Vector(-23, 11.25, 0)), False)
sketch4.addGeometry(Part.ArcOfCircle(Part.Circle(Vector(-22, 11.25, 0), Vector(0, 0, 1), 1), math.radians(90), math.radians(180)), False)
sketch4.addGeometry(Part.LineSegment(Vector(-22, 12.25, 0), Vector(22, 12.25, 0)), False)
sketch4.addGeometry(Part.LineSegment(Vector(-20, 9.25, 0), Vector(-20, -9.25, 0)), False)
sketch4.addGeometry(Part.LineSegment(Vector(-20, -9.25, 0), Vector(-1.5, -9.25, 0)), False)
sketch4.addGeometry(Part.LineSegment(Vector(-1.5, -9.25, 0), Vector(-1.5, 9.25, 0)), False)
sketch4.addGeometry(Part.LineSegment(Vector(-1.5, 9.25, 0), Vector(-20, 9.25, 0)), False)
sketch4.addGeometry(Part.LineSegment(Vector(1.5, 9.25, 0), Vector(1.5, -9.25, 0)), False)
sketch4.addGeometry(Part.LineSegment(Vector(1.5, -9.25, 0), Vector(20, -9.25, 0)), False)
sketch4.addGeometry(Part.LineSegment(Vector(20, -9.25, 0), Vector(20, 9.25, 0)), False)
sketch4.addGeometry(Part.LineSegment(Vector(20, 9.25, 0), Vector(1.5, 9.25, 0)), False)
sketch4.addGeometry(Part.Circle(Vector(26.25, 0, 0), Vector(0, 0, 1), 1.7), False)
sketch4.addGeometry(Part.Circle(Vector(-26.25, 0, 0), Vector(0, 0, 1), 1.7), False)
sketch4.addConstraint(Sketcher.Constraint("Tangent", 0, 1, 1, 1))
sketch4.addConstraint(Sketcher.Constraint("Tangent", 1, 2, 2, 1))
sketch4.addConstraint(Sketcher.Constraint("Tangent", 2, 2, 3, 2))
sketch4.addConstraint(Sketcher.Constraint("Tangent", 3, 1, 4, 1))
sketch4.addConstraint(Sketcher.Constraint("Tangent", 4, 2, 5, 1))
sketch4.addConstraint(Sketcher.Constraint("Tangent", 5, 2, 6, 2))
sketch4.addConstraint(Sketcher.Constraint("Tangent", 6, 1, 7, 1))
sketch4.addConstraint(Sketcher.Constraint("Tangent", 7, 2, 8, 2))
sketch4.addConstraint(Sketcher.Constraint("Tangent", 8, 1, 9, 1))
sketch4.addConstraint(Sketcher.Constraint("Tangent", 9, 2, 10, 1))
sketch4.addConstraint(Sketcher.Constraint("Tangent", 10, 2, 11, 2))
sketch4.addConstraint(Sketcher.Constraint("Tangent", 11, 1, 12, 1))
sketch4.addConstraint(Sketcher.Constraint("Tangent", 12, 2, 13, 1))
sketch4.addConstraint(Sketcher.Constraint("Tangent", 13, 2, 14, 2))
sketch4.addConstraint(Sketcher.Constraint("Tangent", 14, 1, 15, 1))
sketch4.addConstraint(Sketcher.Constraint("Tangent", 15, 2, 0, 2))
sketch4.addConstraint(Sketcher.Constraint("Coincident", 16, 2, 17, 1))
sketch4.addConstraint(Sketcher.Constraint("Coincident", 17, 2, 18, 1))
sketch4.addConstraint(Sketcher.Constraint("Coincident", 18, 2, 19, 1))
sketch4.addConstraint(Sketcher.Constraint("Coincident", 19, 2, 16, 1))
sketch4.addConstraint(Sketcher.Constraint("Coincident", 20, 2, 21, 1))
sketch4.addConstraint(Sketcher.Constraint("Coincident", 21, 2, 22, 1))
sketch4.addConstraint(Sketcher.Constraint("Coincident", 22, 2, 23, 1))
sketch4.addConstraint(Sketcher.Constraint("Coincident", 23, 2, 20, 1))
sketch4.addConstraint(Sketcher.Constraint("Vertical", 1))
sketch4.addConstraint(Sketcher.Constraint("Vertical", 5))
sketch4.addConstraint(Sketcher.Constraint("Horizontal", 7))
sketch4.addConstraint(Sketcher.Constraint("Vertical", 9))
sketch4.addConstraint(Sketcher.Constraint("Vertical", 13))
sketch4.addConstraint(Sketcher.Constraint("Horizontal", 15))
sketch4.addConstraint(Sketcher.Constraint("Vertical", 16))
sketch4.addConstraint(Sketcher.Constraint("Horizontal", 17))
sketch4.addConstraint(Sketcher.Constraint("Vertical", 18))
sketch4.addConstraint(Sketcher.Constraint("Horizontal", 19))
sketch4.addConstraint(Sketcher.Constraint("Vertical", 20))
sketch4.addConstraint(Sketcher.Constraint("Horizontal", 21))
sketch4.addConstraint(Sketcher.Constraint("Vertical", 22))
sketch4.addConstraint(Sketcher.Constraint("Horizontal", 23))
sketch4.addConstraint(Sketcher.Constraint("Coincident", 24, 3, 3, 3))
sketch4.addConstraint(Sketcher.Constraint("Coincident", 25, 3, 11, 3))
sketch4.addConstraint(Sketcher.Constraint("Equal", 2, 3))
sketch4.addConstraint(Sketcher.Constraint("Equal", 3, 4))
sketch4.addConstraint(Sketcher.Constraint("Equal", 0, 6))
sketch4.addConstraint(Sketcher.Constraint("Equal", 6, 8))
sketch4.addConstraint(Sketcher.Constraint("Equal", 4, 10))
sketch4.addConstraint(Sketcher.Constraint("Equal", 10, 11))
sketch4.addConstraint(Sketcher.Constraint("Equal", 11, 12))
sketch4.addConstraint(Sketcher.Constraint("Equal", 8, 14))
sketch4.addConstraint(Sketcher.Constraint("Equal", 24, 25))
sketch4.addConstraint(Sketcher.Constraint("Symmetric", 0, 3, 8, 3, -1, 1))
sketch4.addConstraint(Sketcher.Constraint("Symmetric", 3, 3, 11, 3, -1, 1))
sketch4.addConstraint(Sketcher.Constraint("Symmetric", 18, 2, 20, 2, -1, 1))
sketch4.addConstraint(Sketcher.Constraint("Symmetric", 16, 2, 22, 2, -1, 1))
sketch4.addConstraint(Sketcher.Constraint("Symmetric", 4, 3, 10, 3, -2))
sketch4.addConstraint(Sketcher.Constraint("Horizontal", 17, 2, 20, 2))
sketch4.addConstraint(Sketcher.Constraint("Vertical", 2, 3, 3, 3))
sketch4.addConstraint(Sketcher.Constraint("Vertical", 11, 3, 12, 3))
sketch4.addConstraint(Sketcher.Constraint("Equal", 23, 16))
sketch4.addConstraint(Sketcher.Constraint("Radius", 0, Q("1 mm")))
sketch4.addConstraint(Sketcher.Constraint("Diameter", 24, Q("3.4 mm")))
sketch4.addConstraint(Sketcher.Constraint("DistanceX", 7, 2, 7, 1, Q("44 mm")))
sketch4.addConstraint(Sketcher.Constraint("Radius", 2, Q("3.25 mm")))
sketch4.addConstraint(Sketcher.Constraint("DistanceX", 17, 1, 17, 2, Q("18.5 mm")))
sketch4.addConstraint(Sketcher.Constraint("DistanceX", 16, 2, -1, 1, Q("20 mm")))
sketch4.addConstraint(Sketcher.Constraint("DistanceY", 2, 2, 0, 1, Q("8 mm")))
pad4 = body2.newObject("PartDesign::Pad", "Pad003")
pad4.Profile = sketch4
pad4.Length = 2.5
pad4.Reversed = True

sketch5 = body2.newObject("Sketcher::SketchObject", "Sketch004")
sketch5.AttachmentSupport = (doc.getObject("XZ_Plane001"), [""])
sketch5.MapMode = "FlatFace"
sketch5.AttachmentOffset = App.Placement(Vector(0, 0, -9.5), App.Rotation())
sketch5.addGeometry(Part.ArcOfCircle(Part.Circle(Vector(22, 11.25, 0), Vector(0, 0, 1), 1), math.radians(0), math.radians(90)), False)
sketch5.addGeometry(Part.LineSegment(Vector(23, 11.25, 0), Vector(23, 6.5, 0)), False)
sketch5.addGeometry(Part.ArcOfCircle(Part.Circle(Vector(26.25, 6.5, 0), Vector(0, 0, 1), 3.25), math.radians(180), math.radians(270)), False)
sketch5.addGeometry(Part.ArcOfCircle(Part.Circle(Vector(26.25, 0, 0), Vector(0, 0, 1), 3.25), math.radians(-90), math.radians(90)), False)
sketch5.addGeometry(Part.ArcOfCircle(Part.Circle(Vector(26.25, -6.5, 0), Vector(0, 0, 1), 3.25), math.radians(90), math.radians(180)), False)
sketch5.addGeometry(Part.LineSegment(Vector(23, -6.5, 0), Vector(23, -11.25, 0)), False)
sketch5.addGeometry(Part.ArcOfCircle(Part.Circle(Vector(22, -11.25, 0), Vector(0, 0, 1), 1), math.radians(-90), math.radians(0)), False)
sketch5.addGeometry(Part.LineSegment(Vector(22, -12.25, 0), Vector(-22, -12.25, 0)), False)
sketch5.addGeometry(Part.ArcOfCircle(Part.Circle(Vector(-22, -11.25, 0), Vector(0, 0, 1), 1), math.radians(-180), math.radians(-90)), False)
sketch5.addGeometry(Part.LineSegment(Vector(-23, -11.25, 0), Vector(-23, -6.5, 0)), False)
sketch5.addGeometry(Part.ArcOfCircle(Part.Circle(Vector(-26.25, -6.5, 0), Vector(0, 0, 1), 3.25), math.radians(0), math.radians(90)), False)
sketch5.addGeometry(Part.ArcOfCircle(Part.Circle(Vector(-26.25, 0, 0), Vector(0, 0, 1), 3.25), math.radians(90), math.radians(270)), False)
sketch5.addGeometry(Part.ArcOfCircle(Part.Circle(Vector(-26.25, 6.5, 0), Vector(0, 0, 1), 3.25), math.radians(-90), math.radians(0)), False)
sketch5.addGeometry(Part.LineSegment(Vector(-23, 6.5, 0), Vector(-23, 11.25, 0)), False)
sketch5.addGeometry(Part.ArcOfCircle(Part.Circle(Vector(-22, 11.25, 0), Vector(0, 0, 1), 1), math.radians(90), math.radians(180)), False)
sketch5.addGeometry(Part.LineSegment(Vector(-22, 12.25, 0), Vector(22, 12.25, 0)), False)
sketch5.addGeometry(Part.Circle(Vector(26.25, 0, 0), Vector(0, 0, 1), 1.7), False)
sketch5.addGeometry(Part.Circle(Vector(-26.25, 0, 0), Vector(0, 0, 1), 1.7), False)
sketch5.addConstraint(Sketcher.Constraint("Tangent", 0, 1, 1, 1))
sketch5.addConstraint(Sketcher.Constraint("Tangent", 1, 2, 2, 1))
sketch5.addConstraint(Sketcher.Constraint("Tangent", 2, 2, 3, 2))
sketch5.addConstraint(Sketcher.Constraint("Tangent", 3, 1, 4, 1))
sketch5.addConstraint(Sketcher.Constraint("Tangent", 4, 2, 5, 1))
sketch5.addConstraint(Sketcher.Constraint("Tangent", 5, 2, 6, 2))
sketch5.addConstraint(Sketcher.Constraint("Tangent", 6, 1, 7, 1))
sketch5.addConstraint(Sketcher.Constraint("Tangent", 7, 2, 8, 2))
sketch5.addConstraint(Sketcher.Constraint("Tangent", 8, 1, 9, 1))
sketch5.addConstraint(Sketcher.Constraint("Tangent", 9, 2, 10, 1))
sketch5.addConstraint(Sketcher.Constraint("Tangent", 10, 2, 11, 2))
sketch5.addConstraint(Sketcher.Constraint("Tangent", 11, 1, 12, 1))
sketch5.addConstraint(Sketcher.Constraint("Tangent", 12, 2, 13, 1))
sketch5.addConstraint(Sketcher.Constraint("Tangent", 13, 2, 14, 2))
sketch5.addConstraint(Sketcher.Constraint("Tangent", 14, 1, 15, 1))
sketch5.addConstraint(Sketcher.Constraint("Tangent", 15, 2, 0, 2))
sketch5.addConstraint(Sketcher.Constraint("Vertical", 1))
sketch5.addConstraint(Sketcher.Constraint("Vertical", 5))
sketch5.addConstraint(Sketcher.Constraint("Horizontal", 7))
sketch5.addConstraint(Sketcher.Constraint("Vertical", 9))
sketch5.addConstraint(Sketcher.Constraint("Vertical", 13))
sketch5.addConstraint(Sketcher.Constraint("Horizontal", 15))
sketch5.addConstraint(Sketcher.Constraint("Coincident", 16, 3, 3, 3))
sketch5.addConstraint(Sketcher.Constraint("Coincident", 17, 3, 11, 3))
sketch5.addConstraint(Sketcher.Constraint("Equal", 2, 3))
sketch5.addConstraint(Sketcher.Constraint("Equal", 3, 4))
sketch5.addConstraint(Sketcher.Constraint("Equal", 0, 6))
sketch5.addConstraint(Sketcher.Constraint("Equal", 6, 8))
sketch5.addConstraint(Sketcher.Constraint("Equal", 4, 10))
sketch5.addConstraint(Sketcher.Constraint("Equal", 10, 11))
sketch5.addConstraint(Sketcher.Constraint("Equal", 11, 12))
sketch5.addConstraint(Sketcher.Constraint("Equal", 8, 14))
sketch5.addConstraint(Sketcher.Constraint("Equal", 16, 17))
sketch5.addConstraint(Sketcher.Constraint("Symmetric", 0, 3, 8, 3, -1, 1))
sketch5.addConstraint(Sketcher.Constraint("Symmetric", 3, 3, 11, 3, -1, 1))
sketch5.addConstraint(Sketcher.Constraint("Symmetric", 4, 3, 10, 3, -2))
sketch5.addConstraint(Sketcher.Constraint("Vertical", 2, 3, 3, 3))
sketch5.addConstraint(Sketcher.Constraint("Vertical", 11, 3, 12, 3))
sketch5.addConstraint(Sketcher.Constraint("Radius", 0, Q("1 mm")))
sketch5.addConstraint(Sketcher.Constraint("Diameter", 16, Q("3.4 mm")))
sketch5.addConstraint(Sketcher.Constraint("DistanceX", 7, 2, 7, 1, Q("44 mm")))
sketch5.addConstraint(Sketcher.Constraint("Radius", 2, Q("3.25 mm")))
sketch5.addConstraint(Sketcher.Constraint("DistanceY", 2, 2, 0, 1, Q("8 mm")))
pad5 = body2.newObject("PartDesign::Pad", "Pad004")
pad5.Profile = sketch5
pad5.Length = 1
pad5.Reversed = True
doc.recompute()

fillet = body2.newObject("PartDesign::Fillet", "Fillet")
fillet.Base = (pad5, edges_at(pad5, [
    (-22.707, 10.5, -11.957),
    (-23, 10.5, -8.875),
    (-29.5, 10.5, 0),
    (-23, 10.5, 8.875),
    (-22.707, 10.5, 11.957),
    (0, 10.5, 12.25),
    (22.707, 10.5, 11.957),
    (29.5, 10.5, 0),
    (22.707, 10.5, -11.957),
    (0, 10.5, -12.25),
    (-23.952, 10.5, -4.202),
    (-23.952, 10.5, 4.202),
    (23, 10.5, 8.875),
    (23.952, 10.5, 4.202),
    (23.952, 10.5, -4.202),
    (23, 10.5, -8.875),
]))
fillet.Radius = 1
body2.Visibility = False

doc.recompute()
